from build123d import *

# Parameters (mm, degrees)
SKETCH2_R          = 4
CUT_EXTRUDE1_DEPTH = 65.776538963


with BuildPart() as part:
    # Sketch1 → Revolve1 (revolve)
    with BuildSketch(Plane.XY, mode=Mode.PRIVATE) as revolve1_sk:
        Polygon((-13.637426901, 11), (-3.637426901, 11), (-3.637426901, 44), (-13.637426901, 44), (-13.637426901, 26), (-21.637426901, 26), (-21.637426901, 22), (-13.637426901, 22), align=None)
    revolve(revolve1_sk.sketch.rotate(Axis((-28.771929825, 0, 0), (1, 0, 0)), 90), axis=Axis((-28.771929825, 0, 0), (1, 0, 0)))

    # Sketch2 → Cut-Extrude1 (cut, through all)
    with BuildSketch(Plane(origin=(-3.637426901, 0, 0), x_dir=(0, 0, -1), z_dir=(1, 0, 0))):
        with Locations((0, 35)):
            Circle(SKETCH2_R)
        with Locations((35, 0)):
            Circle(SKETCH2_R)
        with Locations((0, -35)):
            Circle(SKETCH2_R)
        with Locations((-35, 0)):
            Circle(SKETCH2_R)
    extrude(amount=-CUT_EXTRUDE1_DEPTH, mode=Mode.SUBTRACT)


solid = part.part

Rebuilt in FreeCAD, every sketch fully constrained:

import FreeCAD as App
import Part
import Sketcher
Q = App.Units.Quantity

doc = App.newDocument("Part")
body = doc.addObject("PartDesign::Body", "Body")

# Sketch on XY plane
sketch1 = body.newObject("Sketcher::SketchObject", "Sketch")
sketch1.AttachmentSupport = (doc.getObject("XY_Plane"), [""])
sketch1.MapMode = "FlatFace"
sketch1.addGeometry([
    Part.LineSegment(App.Vector(-13.6, 11, 0), App.Vector(-3.6, 11, 0)),  # 0
    Part.LineSegment(App.Vector(-3.6, 11, 0), App.Vector(-3.6, 44, 0)),  # 1
    Part.LineSegment(App.Vector(-3.6, 44, 0), App.Vector(-13.6, 44, 0)),  # 2
    Part.LineSegment(App.Vector(-13.6, 44, 0), App.Vector(-13.6, 26, 0)),  # 3
    Part.LineSegment(App.Vector(-13.6, 26, 0), App.Vector(-21.6, 26, 0)),  # 4
    Part.LineSegment(App.Vector(-21.6, 26, 0), App.Vector(-21.6, 22, 0)),  # 5
    Part.LineSegment(App.Vector(-21.6, 22, 0), App.Vector(-13.6, 22, 0)),  # 6
    Part.LineSegment(App.Vector(-13.6, 22, 0), App.Vector(-13.6, 11, 0)),  # 7
], False)
sketch1.addConstraint([
    Sketcher.Constraint("Coincident", 0, 2, 1, 1),
    Sketcher.Constraint("Coincident", 1, 2, 2, 1),
    Sketcher.Constraint("Coincident", 2, 2, 3, 1),
    Sketcher.Constraint("Coincident", 3, 2, 4, 1),
    Sketcher.Constraint("Coincident", 4, 2, 5, 1),
    Sketcher.Constraint("Coincident", 5, 2, 6, 1),
    Sketcher.Constraint("Coincident", 6, 2, 7, 1),
    Sketcher.Constraint("Coincident", 7, 2, 0, 1),
    Sketcher.Constraint("Horizontal", 0),
    Sketcher.Constraint("Vertical", 1),
    Sketcher.Constraint("Horizontal", 2),
    Sketcher.Constraint("Vertical", 3),
    Sketcher.Constraint("Horizontal", 4),
    Sketcher.Constraint("Vertical", 5),
    Sketcher.Constraint("Horizontal", 6),
    Sketcher.Constraint("Vertical", 7),
    Sketcher.Constraint("Vertical", 3, 2, 6, 2),
    Sketcher.Constraint("DistanceX", 0, 1, 0, 2, Q("10 mm")),
    Sketcher.Constraint("DistanceX", 4, 2, 4, 1, Q("8 mm")),
    Sketcher.Constraint("DistanceY", 1, 1, 1, 2, Q("33 mm")),
    Sketcher.Constraint("DistanceY", 3, 2, 3, 1, Q("18 mm")),
    Sketcher.Constraint("DistanceY", 5, 2, 5, 1, Q("4 mm")),
    Sketcher.Constraint("DistanceY", -1, 1, 0, 2, Q("11 mm")),
    Sketcher.Constraint("DistanceX", 0, 2, -1, 1, Q("3.637427 mm")),
])
revolution = body.newObject("PartDesign::Revolution", "Revolution")
revolution.Profile = sketch1
revolution.ReferenceAxis = (sketch1, ["H_Axis"])
revolution.Angle = 360

# Sketch on YZ plane
sketch2 = body.newObject("Sketcher::SketchObject", "Sketch001")
sketch2.AttachmentSupport = (doc.getObject("YZ_Plane"), [""])
sketch2.MapMode = "FlatFace"
sketch2.AttachmentOffset = App.Placement(App.Vector(0, 0, -3.637427), App.Rotation())
sketch2.addGeometry([
    Part.Circle(App.Vector(35, 0, 0), App.Vector(0, 0, 1), 4),
    Part.Circle(App.Vector(0, -35, 0), App.Vector(0, 0, 1), 4),
    Part.Circle(App.Vector(-35, 0, 0), App.Vector(0, 0, 1), 4),
    Part.Circle(App.Vector(0, 35, 0), App.Vector(0, 0, 1), 4),
], False)
sketch2.addConstraint([
    Sketcher.Constraint("Equal", 0, 1),
    Sketcher.Constraint("Equal", 1, 2),
    Sketcher.Constraint("Equal", 2, 3),
    Sketcher.Constraint("Symmetric", 0, 3, 2, 3, -1, 1),
    Sketcher.Constraint("Symmetric", 1, 3, 3, 3, -1, 1),
    Sketcher.Constraint("PointOnObject", 0, 3, -1),
    Sketcher.Constraint("PointOnObject", 1, 3, -2),
    Sketcher.Constraint("Diameter", 0, Q("8 mm")),
    Sketcher.Constraint("DistanceX", -1, 1, 0, 3, Q("35 mm")),
    Sketcher.Constraint("DistanceY", 1, 3, -1, 1, Q("35 mm")),
])
pocket1 = body.newObject("PartDesign::Pocket", "Pocket")
pocket1.Profile = sketch2
pocket1.Type = "ThroughAll"

doc.recompute()
